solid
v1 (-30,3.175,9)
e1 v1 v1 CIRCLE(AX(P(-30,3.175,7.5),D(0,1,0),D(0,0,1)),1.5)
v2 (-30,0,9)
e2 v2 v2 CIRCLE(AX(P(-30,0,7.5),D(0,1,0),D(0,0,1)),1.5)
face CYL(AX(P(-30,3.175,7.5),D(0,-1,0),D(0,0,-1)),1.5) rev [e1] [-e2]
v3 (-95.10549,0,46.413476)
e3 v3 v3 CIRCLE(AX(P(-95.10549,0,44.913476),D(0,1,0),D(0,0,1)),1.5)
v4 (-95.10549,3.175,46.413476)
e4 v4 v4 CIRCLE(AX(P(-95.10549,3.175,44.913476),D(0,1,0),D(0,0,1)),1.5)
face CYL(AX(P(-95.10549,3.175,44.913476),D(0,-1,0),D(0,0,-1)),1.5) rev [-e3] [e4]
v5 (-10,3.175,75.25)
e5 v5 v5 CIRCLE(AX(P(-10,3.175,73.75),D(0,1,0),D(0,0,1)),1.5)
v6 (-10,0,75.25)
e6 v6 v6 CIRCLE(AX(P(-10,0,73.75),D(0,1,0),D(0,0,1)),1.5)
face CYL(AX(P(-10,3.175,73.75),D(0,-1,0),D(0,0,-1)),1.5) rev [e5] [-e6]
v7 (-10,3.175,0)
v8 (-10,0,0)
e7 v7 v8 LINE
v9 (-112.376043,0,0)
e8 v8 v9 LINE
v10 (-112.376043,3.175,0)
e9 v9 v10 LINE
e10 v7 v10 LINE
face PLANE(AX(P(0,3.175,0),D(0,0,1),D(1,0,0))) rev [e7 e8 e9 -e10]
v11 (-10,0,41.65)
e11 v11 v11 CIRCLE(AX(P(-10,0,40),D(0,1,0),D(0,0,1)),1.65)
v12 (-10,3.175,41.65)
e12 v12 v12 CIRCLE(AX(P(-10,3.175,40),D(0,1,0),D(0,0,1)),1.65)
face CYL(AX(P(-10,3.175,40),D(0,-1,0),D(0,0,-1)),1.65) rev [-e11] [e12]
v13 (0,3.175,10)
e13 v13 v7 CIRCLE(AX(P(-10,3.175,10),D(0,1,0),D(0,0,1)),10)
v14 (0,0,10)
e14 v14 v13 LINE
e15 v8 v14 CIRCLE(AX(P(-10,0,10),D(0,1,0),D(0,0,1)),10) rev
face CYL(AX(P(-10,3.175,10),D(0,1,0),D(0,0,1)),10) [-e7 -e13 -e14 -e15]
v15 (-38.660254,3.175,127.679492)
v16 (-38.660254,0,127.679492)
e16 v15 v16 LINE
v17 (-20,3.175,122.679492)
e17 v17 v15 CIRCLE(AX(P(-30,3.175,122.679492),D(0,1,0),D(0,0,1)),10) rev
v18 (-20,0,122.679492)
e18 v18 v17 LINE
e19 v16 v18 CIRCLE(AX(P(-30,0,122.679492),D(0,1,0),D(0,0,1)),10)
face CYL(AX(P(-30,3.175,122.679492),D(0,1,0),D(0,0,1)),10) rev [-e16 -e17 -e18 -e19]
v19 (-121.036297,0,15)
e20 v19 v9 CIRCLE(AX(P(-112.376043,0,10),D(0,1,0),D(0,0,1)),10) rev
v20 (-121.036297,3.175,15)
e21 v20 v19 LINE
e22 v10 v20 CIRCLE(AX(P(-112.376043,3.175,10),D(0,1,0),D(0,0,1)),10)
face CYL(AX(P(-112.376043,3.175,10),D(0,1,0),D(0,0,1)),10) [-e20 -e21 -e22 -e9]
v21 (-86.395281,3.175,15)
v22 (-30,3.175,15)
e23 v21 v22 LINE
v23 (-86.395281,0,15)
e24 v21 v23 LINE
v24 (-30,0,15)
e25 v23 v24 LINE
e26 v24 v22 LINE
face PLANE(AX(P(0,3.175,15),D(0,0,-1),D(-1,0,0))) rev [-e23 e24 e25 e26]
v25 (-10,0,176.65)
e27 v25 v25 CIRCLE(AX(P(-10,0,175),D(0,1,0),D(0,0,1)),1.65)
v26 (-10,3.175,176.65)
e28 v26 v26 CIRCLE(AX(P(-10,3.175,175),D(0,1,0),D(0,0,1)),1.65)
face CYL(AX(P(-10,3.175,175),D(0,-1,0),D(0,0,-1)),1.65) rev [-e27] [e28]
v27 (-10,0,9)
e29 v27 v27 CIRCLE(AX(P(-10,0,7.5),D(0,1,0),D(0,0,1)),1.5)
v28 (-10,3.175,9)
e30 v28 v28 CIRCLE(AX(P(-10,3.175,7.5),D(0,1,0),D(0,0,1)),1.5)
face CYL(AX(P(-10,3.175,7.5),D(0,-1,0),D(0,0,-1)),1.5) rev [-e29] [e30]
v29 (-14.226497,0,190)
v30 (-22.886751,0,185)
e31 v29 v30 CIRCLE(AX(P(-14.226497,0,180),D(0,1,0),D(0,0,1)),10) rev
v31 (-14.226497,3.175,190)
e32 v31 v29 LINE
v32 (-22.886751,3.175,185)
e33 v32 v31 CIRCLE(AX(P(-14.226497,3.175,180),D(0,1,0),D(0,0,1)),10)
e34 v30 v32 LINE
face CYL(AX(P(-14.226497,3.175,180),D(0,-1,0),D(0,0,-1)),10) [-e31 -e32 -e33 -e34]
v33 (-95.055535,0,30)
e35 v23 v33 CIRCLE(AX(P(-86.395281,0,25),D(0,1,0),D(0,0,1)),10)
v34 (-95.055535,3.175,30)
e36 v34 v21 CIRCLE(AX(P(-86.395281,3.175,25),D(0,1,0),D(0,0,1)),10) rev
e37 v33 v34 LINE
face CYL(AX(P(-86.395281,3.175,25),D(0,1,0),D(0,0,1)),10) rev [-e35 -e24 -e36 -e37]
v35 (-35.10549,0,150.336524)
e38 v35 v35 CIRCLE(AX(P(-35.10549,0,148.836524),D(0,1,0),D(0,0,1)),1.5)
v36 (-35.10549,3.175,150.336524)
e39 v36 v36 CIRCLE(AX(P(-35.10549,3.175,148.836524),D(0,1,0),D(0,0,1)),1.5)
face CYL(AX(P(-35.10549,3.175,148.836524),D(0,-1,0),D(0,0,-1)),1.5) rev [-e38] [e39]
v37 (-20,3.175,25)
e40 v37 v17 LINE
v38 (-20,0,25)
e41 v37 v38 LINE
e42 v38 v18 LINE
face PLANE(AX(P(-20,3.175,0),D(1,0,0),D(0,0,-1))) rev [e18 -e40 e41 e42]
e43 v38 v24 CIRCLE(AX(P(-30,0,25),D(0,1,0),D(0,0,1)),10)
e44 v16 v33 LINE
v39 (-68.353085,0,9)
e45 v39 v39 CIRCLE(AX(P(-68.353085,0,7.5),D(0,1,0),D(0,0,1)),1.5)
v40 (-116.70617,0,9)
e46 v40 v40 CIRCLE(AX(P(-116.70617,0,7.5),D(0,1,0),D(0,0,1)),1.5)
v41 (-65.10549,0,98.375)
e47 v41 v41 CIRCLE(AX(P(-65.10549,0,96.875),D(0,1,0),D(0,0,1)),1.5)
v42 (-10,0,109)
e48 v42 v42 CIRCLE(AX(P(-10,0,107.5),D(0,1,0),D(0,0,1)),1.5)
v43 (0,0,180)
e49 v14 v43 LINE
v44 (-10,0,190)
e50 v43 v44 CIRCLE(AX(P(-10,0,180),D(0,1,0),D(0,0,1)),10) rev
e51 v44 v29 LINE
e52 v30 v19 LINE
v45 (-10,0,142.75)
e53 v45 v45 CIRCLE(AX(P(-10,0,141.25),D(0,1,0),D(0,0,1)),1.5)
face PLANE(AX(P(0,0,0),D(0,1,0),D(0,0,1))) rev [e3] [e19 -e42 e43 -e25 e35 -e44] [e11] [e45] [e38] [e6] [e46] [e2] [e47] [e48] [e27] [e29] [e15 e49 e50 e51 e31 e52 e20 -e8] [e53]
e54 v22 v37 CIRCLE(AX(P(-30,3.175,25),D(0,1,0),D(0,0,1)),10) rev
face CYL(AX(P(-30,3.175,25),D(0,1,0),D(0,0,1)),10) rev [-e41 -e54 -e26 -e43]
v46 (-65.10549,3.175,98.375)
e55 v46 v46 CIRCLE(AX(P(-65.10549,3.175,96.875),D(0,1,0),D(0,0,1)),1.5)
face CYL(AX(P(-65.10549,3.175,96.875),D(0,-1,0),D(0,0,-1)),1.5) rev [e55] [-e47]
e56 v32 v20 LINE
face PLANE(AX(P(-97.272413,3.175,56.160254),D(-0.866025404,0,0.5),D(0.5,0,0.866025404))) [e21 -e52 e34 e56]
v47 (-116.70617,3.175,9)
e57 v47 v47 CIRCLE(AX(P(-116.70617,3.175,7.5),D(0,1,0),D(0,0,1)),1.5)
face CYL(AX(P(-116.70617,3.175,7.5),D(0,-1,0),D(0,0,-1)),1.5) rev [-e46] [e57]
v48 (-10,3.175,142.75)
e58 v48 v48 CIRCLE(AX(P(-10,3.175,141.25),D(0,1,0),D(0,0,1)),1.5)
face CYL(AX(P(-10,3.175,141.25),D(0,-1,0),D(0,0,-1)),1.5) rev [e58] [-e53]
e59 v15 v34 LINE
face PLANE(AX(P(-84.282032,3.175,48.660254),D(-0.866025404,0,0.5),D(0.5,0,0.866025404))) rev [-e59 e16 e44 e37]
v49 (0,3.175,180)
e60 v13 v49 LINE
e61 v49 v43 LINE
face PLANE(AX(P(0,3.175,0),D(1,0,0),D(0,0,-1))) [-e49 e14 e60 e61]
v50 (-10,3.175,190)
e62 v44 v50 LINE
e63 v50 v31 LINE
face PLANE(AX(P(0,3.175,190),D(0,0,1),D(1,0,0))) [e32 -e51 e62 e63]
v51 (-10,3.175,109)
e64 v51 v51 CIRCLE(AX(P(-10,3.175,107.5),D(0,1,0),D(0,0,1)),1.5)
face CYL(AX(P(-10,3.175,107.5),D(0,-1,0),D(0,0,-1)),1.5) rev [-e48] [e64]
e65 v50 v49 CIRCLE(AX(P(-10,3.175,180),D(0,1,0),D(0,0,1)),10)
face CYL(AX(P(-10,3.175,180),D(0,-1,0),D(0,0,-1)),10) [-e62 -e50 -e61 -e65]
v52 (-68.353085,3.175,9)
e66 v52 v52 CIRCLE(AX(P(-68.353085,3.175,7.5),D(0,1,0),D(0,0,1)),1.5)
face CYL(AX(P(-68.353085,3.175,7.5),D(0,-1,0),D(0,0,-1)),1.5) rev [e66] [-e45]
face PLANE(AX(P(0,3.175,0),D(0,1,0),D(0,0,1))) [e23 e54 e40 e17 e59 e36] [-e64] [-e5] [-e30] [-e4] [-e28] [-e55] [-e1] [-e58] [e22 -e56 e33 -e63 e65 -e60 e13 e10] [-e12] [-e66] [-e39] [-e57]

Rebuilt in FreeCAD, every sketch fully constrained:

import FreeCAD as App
import Part
import Sketcher
Q = App.Units.Quantity


def edges_at(feature, points):
    """Names of the edges that pass closest to the given points."""
    edges = feature.Shape.Edges
    near = lambda p: min(range(len(edges)), key=lambda i: edges[i].distToShape(Part.Vertex(*p))[0])
    return sorted({f"Edge{near(p) + 1}" for p in points})


def add_polygon(sketch, points):
    """Adds a closed chain of lines whose ends are joined by coincident constraints."""
    first, n = sketch.GeometryCount, len(points)
    for a, b in zip(points, points[1:] + points[:1]):
        sketch.addGeometry(Part.LineSegment(App.Vector(*a, 0), App.Vector(*b, 0)), False)
    for i in range(n):
        sketch.addConstraint(Sketcher.Constraint("Coincident", first + i, 2, first + (i + 1) % n, 1))

doc = App.newDocument("Part")
body = doc.addObject("PartDesign::Body", "Body")

# Sketch on XZ plane
sketch1 = body.newObject("Sketcher::SketchObject", "Sketch")
sketch1.AttachmentSupport = (doc.getObject("XZ_Plane"), [""])
sketch1.MapMode = "FlatFace"
add_polygon(sketch1, [(-20, 190), (0, 190), (0, 0), (-129.7, 0)])  # lines 0-3
sketch1.addGeometry(Part.Circle(App.Vector(-65.1, 96.9, 0), App.Vector(0, 0, 1), 1.5), False)  # 4
sketch1.addGeometry(Part.Circle(App.Vector(-10, 175, 0), App.Vector(0, 0, 1), 1.6), False)  # 5
sketch1.addGeometry(Part.Circle(App.Vector(-35.1, 148.8, 0), App.Vector(0, 0, 1), 1.5), False)  # 6
sketch1.addGeometry(Part.Circle(App.Vector(-10, 141.2, 0), App.Vector(0, 0, 1), 1.5), False)  # 7
sketch1.addGeometry(Part.Circle(App.Vector(-10, 107.5, 0), App.Vector(0, 0, 1), 1.5), False)  # 8
sketch1.addGeometry(Part.Circle(App.Vector(-95.1, 44.9, 0), App.Vector(0, 0, 1), 1.5), False)  # 9
sketch1.addGeometry(Part.Circle(App.Vector(-116.7, 7.5, 0), App.Vector(0, 0, 1), 1.5), False)  # 10
sketch1.addGeometry(Part.Circle(App.Vector(-68.4, 7.5, 0), App.Vector(0, 0, 1), 1.5), False)  # 11
add_polygon(sketch1, [(-103.7, 15), (-20, 15), (-20, 160)])  # lines 12-14
sketch1.addGeometry(Part.Circle(App.Vector(-10, 73.8, 0), App.Vector(0, 0, 1), 1.5), False)  # 15
sketch1.addGeometry(Part.Circle(App.Vector(-10, 40, 0), App.Vector(0, 0, 1), 1.6), False)  # 16
sketch1.addGeometry(Part.Circle(App.Vector(-30, 7.5, 0), App.Vector(0, 0, 1), 1.5), False)  # 17
sketch1.addGeometry(Part.Circle(App.Vector(-10, 7.5, 0), App.Vector(0, 0, 1), 1.5), False)  # 18
sketch1.addConstraint(Sketcher.Constraint("Horizontal", 0))
sketch1.addConstraint(Sketcher.Constraint("Vertical", 1))
sketch1.addConstraint(Sketcher.Constraint("Horizontal", 2))
sketch1.addConstraint(Sketcher.Constraint("Horizontal", 12))
sketch1.addConstraint(Sketcher.Constraint("Vertical", 13))
sketch1.addConstraint(Sketcher.Constraint("Coincident", 1, 2, -1, 1))
sketch1.addConstraint(Sketcher.Constraint("Equal", 4, 6))
sketch1.addConstraint(Sketcher.Constraint("Equal", 6, 7))
sketch1.addConstraint(Sketcher.Constraint("Equal", 7, 8))
sketch1.addConstraint(Sketcher.Constraint("Equal", 8, 9))
sketch1.addConstraint(Sketcher.Constraint("Equal", 9, 10))
sketch1.addConstraint(Sketcher.Constraint("Equal", 10, 11))
sketch1.addConstraint(Sketcher.Constraint("Equal", 11, 15))
sketch1.addConstraint(Sketcher.Constraint("Equal", 5, 16))
sketch1.addConstraint(Sketcher.Constraint("Equal", 15, 17))
sketch1.addConstraint(Sketcher.Constraint("Equal", 17, 18))
sketch1.addConstraint(Sketcher.Constraint("Parallel", 3, 14))
sketch1.addConstraint(Sketcher.Constraint("Horizontal", 10, 3, 11, 3))
sketch1.addConstraint(Sketcher.Constraint("Horizontal", 11, 3, 17, 3))
sketch1.addConstraint(Sketcher.Constraint("Horizontal", 17, 3, 18, 3))
sketch1.addConstraint(Sketcher.Constraint("Vertical", 5, 3, 7, 3))
sketch1.addConstraint(Sketcher.Constraint("Vertical", 7, 3, 8, 3))
sketch1.addConstraint(Sketcher.Constraint("Vertical", 8, 3, 15, 3))
sketch1.addConstraint(Sketcher.Constraint("Vertical", 15, 3, 16, 3))
sketch1.addConstraint(Sketcher.Constraint("Vertical", 16, 3, 18, 3))
sketch1.addConstraint(Sketcher.Constraint("Vertical", 3, 2, 12, 2))
sketch1.addConstraint(Sketcher.Constraint("Diameter", 4, Q("3 mm")))
sketch1.addConstraint(Sketcher.Constraint("Diameter", 5, Q("3.3 mm")))
sketch1.addConstraint(Sketcher.Constraint("DistanceX", 0, 1, 0, 2, Q("20 mm")))
sketch1.addConstraint(Sketcher.Constraint("DistanceY", 1, 2, 1, 1, Q("190 mm")))
sketch1.addConstraint(Sketcher.Constraint("DistanceY", 13, 1, 13, 2, Q("145 mm")))
sketch1.addConstraint(Sketcher.Constraint("Angle", 3, Q("60 deg")))
sketch1.addConstraint(Sketcher.Constraint("DistanceX", 5, 3, -1, 1, Q("10 mm")))
sketch1.addConstraint(Sketcher.Constraint("DistanceY", -1, 1, 5, 3, Q("175 mm")))
sketch1.addConstraint(Sketcher.Constraint("DistanceY", -1, 1, 16, 3, Q("40 mm")))
sketch1.addConstraint(Sketcher.Constraint("DistanceX", 17, 3, -1, 1, Q("30 mm")))
sketch1.addConstraint(Sketcher.Constraint("DistanceY", -1, 1, 12, 2, Q("15 mm")))
sketch1.addConstraint(Sketcher.Constraint("DistanceX", 4, 3, 6, 3, Q("30 mm")))
sketch1.addConstraint(Sketcher.Constraint("DistanceX", 9, 3, 4, 3, Q("30 mm")))
sketch1.addConstraint(Sketcher.Constraint("DistanceY", 10, 3, 8, 3, Q("100 mm")))
sketch1.addConstraint(Sketcher.Constraint("DistanceY", -1, 1, 8, 3, Q("107.5 mm")))
sketch1.addConstraint(Sketcher.Constraint("DistanceY", 15, 3, 7, 3, Q("67.5 mm")))
sketch1.addConstraint(Sketcher.Constraint("DistanceY", -1, 1, 7, 3, Q("141.25 mm")))
sketch1.addConstraint(Sketcher.Constraint("DistanceY", -1, 1, 4, 3, Q("96.875 mm")))
sketch1.addConstraint(Sketcher.Constraint("DistanceX", 14, 2, 9, 3, Q("8.610299 mm")))
sketch1.addConstraint(Sketcher.Constraint("DistanceX", 10, 3, -1, 1, Q("116.70617 mm")))
sketch1.addConstraint(Sketcher.Constraint("DistanceY", 9, 3, 6, 3, Q("103.923048 mm")))
sketch1.addConstraint(Sketcher.Constraint("DistanceY", -1, 1, 6, 3, Q("148.836524 mm")))
sketch1.addConstraint(Sketcher.Constraint("DistanceX", 11, 3, -1, 1, Q("68.353085 mm")))
pad1 = body.newObject("PartDesign::Pad", "Pad")
pad1.Profile = sketch1
pad1.Length = 3.175
pad1.Reversed = True
doc.recompute()

fillet = body.newObject("PartDesign::Fillet", "Fillet")
fillet.Base = (pad1, edges_at(pad1, [
    (-20, 1.587, 15),
    (-103.716, 1.587, 15),
    (-20, 1.587, 160),
    (-129.697, 1.587, 0),
    (0, 1.587, 0),
    (0, 1.587, 190),
    (-20, 1.587, 190),
]))
fillet.Radius = 10

doc.recompute()
